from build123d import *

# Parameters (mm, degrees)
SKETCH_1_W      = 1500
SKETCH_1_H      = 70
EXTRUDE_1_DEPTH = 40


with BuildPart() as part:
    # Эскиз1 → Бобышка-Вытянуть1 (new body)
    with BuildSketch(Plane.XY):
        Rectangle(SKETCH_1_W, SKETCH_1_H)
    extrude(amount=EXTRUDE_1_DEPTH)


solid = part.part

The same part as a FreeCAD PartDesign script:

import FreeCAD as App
import Part
import Sketcher
from FreeCAD import Vector

doc = App.newDocument("Part")
body = doc.addObject("PartDesign::Body", "Body")

sketch1 = body.newObject("Sketcher::SketchObject", "Sketch")
sketch1.AttachmentSupport = (doc.getObject("XY_Plane"), [""])
sketch1.MapMode = "FlatFace"
sketch1.addGeometry([
    Part.LineSegment(Vector(-750, 35, 0), Vector(-750, -35, 0)),
    Part.LineSegment(Vector(-750, -35, 0), Vector(750, -35, 0)),
    Part.LineSegment(Vector(750, -35, 0), Vector(750, 35, 0)),
    Part.LineSegment(Vector(750, 35, 0), Vector(-750, 35, 0)),
], False)
sketch1.addConstraint([
    Sketcher.Constraint("Coincident", 0, 2, 1, 1),
    Sketcher.Constraint("Coincident", 1, 2, 2, 1),
    Sketcher.Constraint("Coincident", 2, 2, 3, 1),
    Sketcher.Constraint("Coincident", 3, 2, 0, 1),
    Sketcher.Constraint("Vertical", 0),
    Sketcher.Constraint("Horizontal", 1),
    Sketcher.Constraint("Vertical", 2),
    Sketcher.Constraint("Horizontal", 3),
    Sketcher.Constraint("Symmetric", 0, 2, 2, 2, -1, 1),
    Sketcher.Constraint("DistanceX", 1, 1, 1, 2, 1500.0),
    Sketcher.Constraint("DistanceY", 0, 2, 0, 1, 70.0),
])
pad1 = body.newObject("PartDesign::Pad", "Pad")
pad1.Profile = sketch1
pad1.Length = 40

doc.recompute()
